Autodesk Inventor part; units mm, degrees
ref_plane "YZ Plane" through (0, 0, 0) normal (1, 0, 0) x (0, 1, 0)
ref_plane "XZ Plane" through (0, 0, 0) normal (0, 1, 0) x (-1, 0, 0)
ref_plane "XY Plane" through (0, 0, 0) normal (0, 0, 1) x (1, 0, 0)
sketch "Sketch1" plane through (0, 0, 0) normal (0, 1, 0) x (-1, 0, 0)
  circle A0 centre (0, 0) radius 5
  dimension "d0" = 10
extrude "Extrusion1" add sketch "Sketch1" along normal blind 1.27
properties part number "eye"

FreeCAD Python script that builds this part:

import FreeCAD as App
import Part
import Sketcher
Q = App.Units.Quantity

doc = App.newDocument("Part")
body = doc.addObject("PartDesign::Body", "Body")

# Sketch on XZ plane
sketch1 = body.newObject("Sketcher::SketchObject", "Sketch")
sketch1.AttachmentSupport = (doc.getObject("XZ_Plane"), [""])
sketch1.MapMode = "FlatFace"
sketch1.addGeometry(Part.Circle(App.Vector(0, 0, 0), App.Vector(0, 0, 1), 5), False)
sketch1.addConstraint([
    Sketcher.Constraint("Coincident", 0, 3, -1, 1),
    Sketcher.Constraint("Diameter", 0, Q("0.3937 in")),
])
pad1 = body.newObject("PartDesign::Pad", "Pad")
pad1.Profile = sketch1
pad1.Length = Q("0.05 in")
pad1.Reversed = True

doc.recompute()
